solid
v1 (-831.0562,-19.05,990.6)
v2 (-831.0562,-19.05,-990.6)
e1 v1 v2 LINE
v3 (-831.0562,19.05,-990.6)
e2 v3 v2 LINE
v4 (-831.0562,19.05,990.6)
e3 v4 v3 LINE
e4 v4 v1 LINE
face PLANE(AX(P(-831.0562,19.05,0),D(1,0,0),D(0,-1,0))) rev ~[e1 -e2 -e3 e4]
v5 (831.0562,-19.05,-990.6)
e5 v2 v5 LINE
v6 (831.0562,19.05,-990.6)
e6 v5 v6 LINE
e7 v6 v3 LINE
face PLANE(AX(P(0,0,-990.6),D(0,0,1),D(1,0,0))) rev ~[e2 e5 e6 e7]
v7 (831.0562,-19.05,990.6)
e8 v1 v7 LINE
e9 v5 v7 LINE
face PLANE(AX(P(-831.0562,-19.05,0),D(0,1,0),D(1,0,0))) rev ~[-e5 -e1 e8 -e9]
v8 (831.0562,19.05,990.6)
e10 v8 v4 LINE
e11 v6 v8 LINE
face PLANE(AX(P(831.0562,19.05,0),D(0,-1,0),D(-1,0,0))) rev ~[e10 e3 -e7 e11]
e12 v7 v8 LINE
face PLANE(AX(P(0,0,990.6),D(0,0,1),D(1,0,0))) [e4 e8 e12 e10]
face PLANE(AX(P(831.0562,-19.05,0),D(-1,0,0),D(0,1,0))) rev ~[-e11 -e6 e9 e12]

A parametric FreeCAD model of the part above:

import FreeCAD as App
import Part
import Sketcher
from FreeCAD import Vector
Q = App.Units.Quantity


def add_polygon(sketch, points):
    """Adds a closed chain of lines whose ends are joined by coincident constraints."""
    first, n = sketch.GeometryCount, len(points)
    for a, b in zip(points, points[1:] + points[:1]):
        sketch.addGeometry(Part.LineSegment(App.Vector(*a, 0), App.Vector(*b, 0)), False)
    for i in range(n):
        sketch.addConstraint(Sketcher.Constraint("Coincident", first + i, 2, first + (i + 1) % n, 1))

doc = App.newDocument("Part")
params = doc.addObject("Spreadsheet::Sheet", "Params")
for row, (alias, value) in enumerate([
    ("sketch1_height", "1.5 in"),
    ("sketch1_width", "65.4375 in"),
    ("pad1_length", "78 in"),
], start=1):
    params.set(f"A{row}", alias)
    params.set(f"B{row}", "=" + value)
    params.setAlias(f"B{row}", alias)

body = doc.addObject("PartDesign::Body", "Body")

sketch1 = body.newObject("Sketcher::SketchObject", "Sketch")
sketch1.AttachmentSupport = (doc.getObject("XY_Plane"), [""])
sketch1.MapMode = "FlatFace"
add_polygon(sketch1, [(-831, 19), (-831, -19), (831, -19), (831, 19)])
sketch1.addConstraint([
    Sketcher.Constraint("Vertical", 0),
    Sketcher.Constraint("Horizontal", 1),
    Sketcher.Constraint("Vertical", 2),
    Sketcher.Constraint("Horizontal", 3),
    Sketcher.Constraint("Symmetric", 0, 2, 2, 2, -1, 1),
    Sketcher.Constraint("DistanceY", 0, 2, 0, 1, Q("1.5 in")),
    Sketcher.Constraint("DistanceX", 1, 1, 1, 2, Q("65.4375 in")),
])
sketch1.setExpression("Constraints[9]", "Params.sketch1_height")
sketch1.setExpression("Constraints[10]", "Params.sketch1_width")
pad1 = body.newObject("PartDesign::Pad", "Pad")
pad1.Profile = sketch1
pad1.setExpression("Length", "Params.pad1_length")
pad1.Midplane = True

doc.recompute()
